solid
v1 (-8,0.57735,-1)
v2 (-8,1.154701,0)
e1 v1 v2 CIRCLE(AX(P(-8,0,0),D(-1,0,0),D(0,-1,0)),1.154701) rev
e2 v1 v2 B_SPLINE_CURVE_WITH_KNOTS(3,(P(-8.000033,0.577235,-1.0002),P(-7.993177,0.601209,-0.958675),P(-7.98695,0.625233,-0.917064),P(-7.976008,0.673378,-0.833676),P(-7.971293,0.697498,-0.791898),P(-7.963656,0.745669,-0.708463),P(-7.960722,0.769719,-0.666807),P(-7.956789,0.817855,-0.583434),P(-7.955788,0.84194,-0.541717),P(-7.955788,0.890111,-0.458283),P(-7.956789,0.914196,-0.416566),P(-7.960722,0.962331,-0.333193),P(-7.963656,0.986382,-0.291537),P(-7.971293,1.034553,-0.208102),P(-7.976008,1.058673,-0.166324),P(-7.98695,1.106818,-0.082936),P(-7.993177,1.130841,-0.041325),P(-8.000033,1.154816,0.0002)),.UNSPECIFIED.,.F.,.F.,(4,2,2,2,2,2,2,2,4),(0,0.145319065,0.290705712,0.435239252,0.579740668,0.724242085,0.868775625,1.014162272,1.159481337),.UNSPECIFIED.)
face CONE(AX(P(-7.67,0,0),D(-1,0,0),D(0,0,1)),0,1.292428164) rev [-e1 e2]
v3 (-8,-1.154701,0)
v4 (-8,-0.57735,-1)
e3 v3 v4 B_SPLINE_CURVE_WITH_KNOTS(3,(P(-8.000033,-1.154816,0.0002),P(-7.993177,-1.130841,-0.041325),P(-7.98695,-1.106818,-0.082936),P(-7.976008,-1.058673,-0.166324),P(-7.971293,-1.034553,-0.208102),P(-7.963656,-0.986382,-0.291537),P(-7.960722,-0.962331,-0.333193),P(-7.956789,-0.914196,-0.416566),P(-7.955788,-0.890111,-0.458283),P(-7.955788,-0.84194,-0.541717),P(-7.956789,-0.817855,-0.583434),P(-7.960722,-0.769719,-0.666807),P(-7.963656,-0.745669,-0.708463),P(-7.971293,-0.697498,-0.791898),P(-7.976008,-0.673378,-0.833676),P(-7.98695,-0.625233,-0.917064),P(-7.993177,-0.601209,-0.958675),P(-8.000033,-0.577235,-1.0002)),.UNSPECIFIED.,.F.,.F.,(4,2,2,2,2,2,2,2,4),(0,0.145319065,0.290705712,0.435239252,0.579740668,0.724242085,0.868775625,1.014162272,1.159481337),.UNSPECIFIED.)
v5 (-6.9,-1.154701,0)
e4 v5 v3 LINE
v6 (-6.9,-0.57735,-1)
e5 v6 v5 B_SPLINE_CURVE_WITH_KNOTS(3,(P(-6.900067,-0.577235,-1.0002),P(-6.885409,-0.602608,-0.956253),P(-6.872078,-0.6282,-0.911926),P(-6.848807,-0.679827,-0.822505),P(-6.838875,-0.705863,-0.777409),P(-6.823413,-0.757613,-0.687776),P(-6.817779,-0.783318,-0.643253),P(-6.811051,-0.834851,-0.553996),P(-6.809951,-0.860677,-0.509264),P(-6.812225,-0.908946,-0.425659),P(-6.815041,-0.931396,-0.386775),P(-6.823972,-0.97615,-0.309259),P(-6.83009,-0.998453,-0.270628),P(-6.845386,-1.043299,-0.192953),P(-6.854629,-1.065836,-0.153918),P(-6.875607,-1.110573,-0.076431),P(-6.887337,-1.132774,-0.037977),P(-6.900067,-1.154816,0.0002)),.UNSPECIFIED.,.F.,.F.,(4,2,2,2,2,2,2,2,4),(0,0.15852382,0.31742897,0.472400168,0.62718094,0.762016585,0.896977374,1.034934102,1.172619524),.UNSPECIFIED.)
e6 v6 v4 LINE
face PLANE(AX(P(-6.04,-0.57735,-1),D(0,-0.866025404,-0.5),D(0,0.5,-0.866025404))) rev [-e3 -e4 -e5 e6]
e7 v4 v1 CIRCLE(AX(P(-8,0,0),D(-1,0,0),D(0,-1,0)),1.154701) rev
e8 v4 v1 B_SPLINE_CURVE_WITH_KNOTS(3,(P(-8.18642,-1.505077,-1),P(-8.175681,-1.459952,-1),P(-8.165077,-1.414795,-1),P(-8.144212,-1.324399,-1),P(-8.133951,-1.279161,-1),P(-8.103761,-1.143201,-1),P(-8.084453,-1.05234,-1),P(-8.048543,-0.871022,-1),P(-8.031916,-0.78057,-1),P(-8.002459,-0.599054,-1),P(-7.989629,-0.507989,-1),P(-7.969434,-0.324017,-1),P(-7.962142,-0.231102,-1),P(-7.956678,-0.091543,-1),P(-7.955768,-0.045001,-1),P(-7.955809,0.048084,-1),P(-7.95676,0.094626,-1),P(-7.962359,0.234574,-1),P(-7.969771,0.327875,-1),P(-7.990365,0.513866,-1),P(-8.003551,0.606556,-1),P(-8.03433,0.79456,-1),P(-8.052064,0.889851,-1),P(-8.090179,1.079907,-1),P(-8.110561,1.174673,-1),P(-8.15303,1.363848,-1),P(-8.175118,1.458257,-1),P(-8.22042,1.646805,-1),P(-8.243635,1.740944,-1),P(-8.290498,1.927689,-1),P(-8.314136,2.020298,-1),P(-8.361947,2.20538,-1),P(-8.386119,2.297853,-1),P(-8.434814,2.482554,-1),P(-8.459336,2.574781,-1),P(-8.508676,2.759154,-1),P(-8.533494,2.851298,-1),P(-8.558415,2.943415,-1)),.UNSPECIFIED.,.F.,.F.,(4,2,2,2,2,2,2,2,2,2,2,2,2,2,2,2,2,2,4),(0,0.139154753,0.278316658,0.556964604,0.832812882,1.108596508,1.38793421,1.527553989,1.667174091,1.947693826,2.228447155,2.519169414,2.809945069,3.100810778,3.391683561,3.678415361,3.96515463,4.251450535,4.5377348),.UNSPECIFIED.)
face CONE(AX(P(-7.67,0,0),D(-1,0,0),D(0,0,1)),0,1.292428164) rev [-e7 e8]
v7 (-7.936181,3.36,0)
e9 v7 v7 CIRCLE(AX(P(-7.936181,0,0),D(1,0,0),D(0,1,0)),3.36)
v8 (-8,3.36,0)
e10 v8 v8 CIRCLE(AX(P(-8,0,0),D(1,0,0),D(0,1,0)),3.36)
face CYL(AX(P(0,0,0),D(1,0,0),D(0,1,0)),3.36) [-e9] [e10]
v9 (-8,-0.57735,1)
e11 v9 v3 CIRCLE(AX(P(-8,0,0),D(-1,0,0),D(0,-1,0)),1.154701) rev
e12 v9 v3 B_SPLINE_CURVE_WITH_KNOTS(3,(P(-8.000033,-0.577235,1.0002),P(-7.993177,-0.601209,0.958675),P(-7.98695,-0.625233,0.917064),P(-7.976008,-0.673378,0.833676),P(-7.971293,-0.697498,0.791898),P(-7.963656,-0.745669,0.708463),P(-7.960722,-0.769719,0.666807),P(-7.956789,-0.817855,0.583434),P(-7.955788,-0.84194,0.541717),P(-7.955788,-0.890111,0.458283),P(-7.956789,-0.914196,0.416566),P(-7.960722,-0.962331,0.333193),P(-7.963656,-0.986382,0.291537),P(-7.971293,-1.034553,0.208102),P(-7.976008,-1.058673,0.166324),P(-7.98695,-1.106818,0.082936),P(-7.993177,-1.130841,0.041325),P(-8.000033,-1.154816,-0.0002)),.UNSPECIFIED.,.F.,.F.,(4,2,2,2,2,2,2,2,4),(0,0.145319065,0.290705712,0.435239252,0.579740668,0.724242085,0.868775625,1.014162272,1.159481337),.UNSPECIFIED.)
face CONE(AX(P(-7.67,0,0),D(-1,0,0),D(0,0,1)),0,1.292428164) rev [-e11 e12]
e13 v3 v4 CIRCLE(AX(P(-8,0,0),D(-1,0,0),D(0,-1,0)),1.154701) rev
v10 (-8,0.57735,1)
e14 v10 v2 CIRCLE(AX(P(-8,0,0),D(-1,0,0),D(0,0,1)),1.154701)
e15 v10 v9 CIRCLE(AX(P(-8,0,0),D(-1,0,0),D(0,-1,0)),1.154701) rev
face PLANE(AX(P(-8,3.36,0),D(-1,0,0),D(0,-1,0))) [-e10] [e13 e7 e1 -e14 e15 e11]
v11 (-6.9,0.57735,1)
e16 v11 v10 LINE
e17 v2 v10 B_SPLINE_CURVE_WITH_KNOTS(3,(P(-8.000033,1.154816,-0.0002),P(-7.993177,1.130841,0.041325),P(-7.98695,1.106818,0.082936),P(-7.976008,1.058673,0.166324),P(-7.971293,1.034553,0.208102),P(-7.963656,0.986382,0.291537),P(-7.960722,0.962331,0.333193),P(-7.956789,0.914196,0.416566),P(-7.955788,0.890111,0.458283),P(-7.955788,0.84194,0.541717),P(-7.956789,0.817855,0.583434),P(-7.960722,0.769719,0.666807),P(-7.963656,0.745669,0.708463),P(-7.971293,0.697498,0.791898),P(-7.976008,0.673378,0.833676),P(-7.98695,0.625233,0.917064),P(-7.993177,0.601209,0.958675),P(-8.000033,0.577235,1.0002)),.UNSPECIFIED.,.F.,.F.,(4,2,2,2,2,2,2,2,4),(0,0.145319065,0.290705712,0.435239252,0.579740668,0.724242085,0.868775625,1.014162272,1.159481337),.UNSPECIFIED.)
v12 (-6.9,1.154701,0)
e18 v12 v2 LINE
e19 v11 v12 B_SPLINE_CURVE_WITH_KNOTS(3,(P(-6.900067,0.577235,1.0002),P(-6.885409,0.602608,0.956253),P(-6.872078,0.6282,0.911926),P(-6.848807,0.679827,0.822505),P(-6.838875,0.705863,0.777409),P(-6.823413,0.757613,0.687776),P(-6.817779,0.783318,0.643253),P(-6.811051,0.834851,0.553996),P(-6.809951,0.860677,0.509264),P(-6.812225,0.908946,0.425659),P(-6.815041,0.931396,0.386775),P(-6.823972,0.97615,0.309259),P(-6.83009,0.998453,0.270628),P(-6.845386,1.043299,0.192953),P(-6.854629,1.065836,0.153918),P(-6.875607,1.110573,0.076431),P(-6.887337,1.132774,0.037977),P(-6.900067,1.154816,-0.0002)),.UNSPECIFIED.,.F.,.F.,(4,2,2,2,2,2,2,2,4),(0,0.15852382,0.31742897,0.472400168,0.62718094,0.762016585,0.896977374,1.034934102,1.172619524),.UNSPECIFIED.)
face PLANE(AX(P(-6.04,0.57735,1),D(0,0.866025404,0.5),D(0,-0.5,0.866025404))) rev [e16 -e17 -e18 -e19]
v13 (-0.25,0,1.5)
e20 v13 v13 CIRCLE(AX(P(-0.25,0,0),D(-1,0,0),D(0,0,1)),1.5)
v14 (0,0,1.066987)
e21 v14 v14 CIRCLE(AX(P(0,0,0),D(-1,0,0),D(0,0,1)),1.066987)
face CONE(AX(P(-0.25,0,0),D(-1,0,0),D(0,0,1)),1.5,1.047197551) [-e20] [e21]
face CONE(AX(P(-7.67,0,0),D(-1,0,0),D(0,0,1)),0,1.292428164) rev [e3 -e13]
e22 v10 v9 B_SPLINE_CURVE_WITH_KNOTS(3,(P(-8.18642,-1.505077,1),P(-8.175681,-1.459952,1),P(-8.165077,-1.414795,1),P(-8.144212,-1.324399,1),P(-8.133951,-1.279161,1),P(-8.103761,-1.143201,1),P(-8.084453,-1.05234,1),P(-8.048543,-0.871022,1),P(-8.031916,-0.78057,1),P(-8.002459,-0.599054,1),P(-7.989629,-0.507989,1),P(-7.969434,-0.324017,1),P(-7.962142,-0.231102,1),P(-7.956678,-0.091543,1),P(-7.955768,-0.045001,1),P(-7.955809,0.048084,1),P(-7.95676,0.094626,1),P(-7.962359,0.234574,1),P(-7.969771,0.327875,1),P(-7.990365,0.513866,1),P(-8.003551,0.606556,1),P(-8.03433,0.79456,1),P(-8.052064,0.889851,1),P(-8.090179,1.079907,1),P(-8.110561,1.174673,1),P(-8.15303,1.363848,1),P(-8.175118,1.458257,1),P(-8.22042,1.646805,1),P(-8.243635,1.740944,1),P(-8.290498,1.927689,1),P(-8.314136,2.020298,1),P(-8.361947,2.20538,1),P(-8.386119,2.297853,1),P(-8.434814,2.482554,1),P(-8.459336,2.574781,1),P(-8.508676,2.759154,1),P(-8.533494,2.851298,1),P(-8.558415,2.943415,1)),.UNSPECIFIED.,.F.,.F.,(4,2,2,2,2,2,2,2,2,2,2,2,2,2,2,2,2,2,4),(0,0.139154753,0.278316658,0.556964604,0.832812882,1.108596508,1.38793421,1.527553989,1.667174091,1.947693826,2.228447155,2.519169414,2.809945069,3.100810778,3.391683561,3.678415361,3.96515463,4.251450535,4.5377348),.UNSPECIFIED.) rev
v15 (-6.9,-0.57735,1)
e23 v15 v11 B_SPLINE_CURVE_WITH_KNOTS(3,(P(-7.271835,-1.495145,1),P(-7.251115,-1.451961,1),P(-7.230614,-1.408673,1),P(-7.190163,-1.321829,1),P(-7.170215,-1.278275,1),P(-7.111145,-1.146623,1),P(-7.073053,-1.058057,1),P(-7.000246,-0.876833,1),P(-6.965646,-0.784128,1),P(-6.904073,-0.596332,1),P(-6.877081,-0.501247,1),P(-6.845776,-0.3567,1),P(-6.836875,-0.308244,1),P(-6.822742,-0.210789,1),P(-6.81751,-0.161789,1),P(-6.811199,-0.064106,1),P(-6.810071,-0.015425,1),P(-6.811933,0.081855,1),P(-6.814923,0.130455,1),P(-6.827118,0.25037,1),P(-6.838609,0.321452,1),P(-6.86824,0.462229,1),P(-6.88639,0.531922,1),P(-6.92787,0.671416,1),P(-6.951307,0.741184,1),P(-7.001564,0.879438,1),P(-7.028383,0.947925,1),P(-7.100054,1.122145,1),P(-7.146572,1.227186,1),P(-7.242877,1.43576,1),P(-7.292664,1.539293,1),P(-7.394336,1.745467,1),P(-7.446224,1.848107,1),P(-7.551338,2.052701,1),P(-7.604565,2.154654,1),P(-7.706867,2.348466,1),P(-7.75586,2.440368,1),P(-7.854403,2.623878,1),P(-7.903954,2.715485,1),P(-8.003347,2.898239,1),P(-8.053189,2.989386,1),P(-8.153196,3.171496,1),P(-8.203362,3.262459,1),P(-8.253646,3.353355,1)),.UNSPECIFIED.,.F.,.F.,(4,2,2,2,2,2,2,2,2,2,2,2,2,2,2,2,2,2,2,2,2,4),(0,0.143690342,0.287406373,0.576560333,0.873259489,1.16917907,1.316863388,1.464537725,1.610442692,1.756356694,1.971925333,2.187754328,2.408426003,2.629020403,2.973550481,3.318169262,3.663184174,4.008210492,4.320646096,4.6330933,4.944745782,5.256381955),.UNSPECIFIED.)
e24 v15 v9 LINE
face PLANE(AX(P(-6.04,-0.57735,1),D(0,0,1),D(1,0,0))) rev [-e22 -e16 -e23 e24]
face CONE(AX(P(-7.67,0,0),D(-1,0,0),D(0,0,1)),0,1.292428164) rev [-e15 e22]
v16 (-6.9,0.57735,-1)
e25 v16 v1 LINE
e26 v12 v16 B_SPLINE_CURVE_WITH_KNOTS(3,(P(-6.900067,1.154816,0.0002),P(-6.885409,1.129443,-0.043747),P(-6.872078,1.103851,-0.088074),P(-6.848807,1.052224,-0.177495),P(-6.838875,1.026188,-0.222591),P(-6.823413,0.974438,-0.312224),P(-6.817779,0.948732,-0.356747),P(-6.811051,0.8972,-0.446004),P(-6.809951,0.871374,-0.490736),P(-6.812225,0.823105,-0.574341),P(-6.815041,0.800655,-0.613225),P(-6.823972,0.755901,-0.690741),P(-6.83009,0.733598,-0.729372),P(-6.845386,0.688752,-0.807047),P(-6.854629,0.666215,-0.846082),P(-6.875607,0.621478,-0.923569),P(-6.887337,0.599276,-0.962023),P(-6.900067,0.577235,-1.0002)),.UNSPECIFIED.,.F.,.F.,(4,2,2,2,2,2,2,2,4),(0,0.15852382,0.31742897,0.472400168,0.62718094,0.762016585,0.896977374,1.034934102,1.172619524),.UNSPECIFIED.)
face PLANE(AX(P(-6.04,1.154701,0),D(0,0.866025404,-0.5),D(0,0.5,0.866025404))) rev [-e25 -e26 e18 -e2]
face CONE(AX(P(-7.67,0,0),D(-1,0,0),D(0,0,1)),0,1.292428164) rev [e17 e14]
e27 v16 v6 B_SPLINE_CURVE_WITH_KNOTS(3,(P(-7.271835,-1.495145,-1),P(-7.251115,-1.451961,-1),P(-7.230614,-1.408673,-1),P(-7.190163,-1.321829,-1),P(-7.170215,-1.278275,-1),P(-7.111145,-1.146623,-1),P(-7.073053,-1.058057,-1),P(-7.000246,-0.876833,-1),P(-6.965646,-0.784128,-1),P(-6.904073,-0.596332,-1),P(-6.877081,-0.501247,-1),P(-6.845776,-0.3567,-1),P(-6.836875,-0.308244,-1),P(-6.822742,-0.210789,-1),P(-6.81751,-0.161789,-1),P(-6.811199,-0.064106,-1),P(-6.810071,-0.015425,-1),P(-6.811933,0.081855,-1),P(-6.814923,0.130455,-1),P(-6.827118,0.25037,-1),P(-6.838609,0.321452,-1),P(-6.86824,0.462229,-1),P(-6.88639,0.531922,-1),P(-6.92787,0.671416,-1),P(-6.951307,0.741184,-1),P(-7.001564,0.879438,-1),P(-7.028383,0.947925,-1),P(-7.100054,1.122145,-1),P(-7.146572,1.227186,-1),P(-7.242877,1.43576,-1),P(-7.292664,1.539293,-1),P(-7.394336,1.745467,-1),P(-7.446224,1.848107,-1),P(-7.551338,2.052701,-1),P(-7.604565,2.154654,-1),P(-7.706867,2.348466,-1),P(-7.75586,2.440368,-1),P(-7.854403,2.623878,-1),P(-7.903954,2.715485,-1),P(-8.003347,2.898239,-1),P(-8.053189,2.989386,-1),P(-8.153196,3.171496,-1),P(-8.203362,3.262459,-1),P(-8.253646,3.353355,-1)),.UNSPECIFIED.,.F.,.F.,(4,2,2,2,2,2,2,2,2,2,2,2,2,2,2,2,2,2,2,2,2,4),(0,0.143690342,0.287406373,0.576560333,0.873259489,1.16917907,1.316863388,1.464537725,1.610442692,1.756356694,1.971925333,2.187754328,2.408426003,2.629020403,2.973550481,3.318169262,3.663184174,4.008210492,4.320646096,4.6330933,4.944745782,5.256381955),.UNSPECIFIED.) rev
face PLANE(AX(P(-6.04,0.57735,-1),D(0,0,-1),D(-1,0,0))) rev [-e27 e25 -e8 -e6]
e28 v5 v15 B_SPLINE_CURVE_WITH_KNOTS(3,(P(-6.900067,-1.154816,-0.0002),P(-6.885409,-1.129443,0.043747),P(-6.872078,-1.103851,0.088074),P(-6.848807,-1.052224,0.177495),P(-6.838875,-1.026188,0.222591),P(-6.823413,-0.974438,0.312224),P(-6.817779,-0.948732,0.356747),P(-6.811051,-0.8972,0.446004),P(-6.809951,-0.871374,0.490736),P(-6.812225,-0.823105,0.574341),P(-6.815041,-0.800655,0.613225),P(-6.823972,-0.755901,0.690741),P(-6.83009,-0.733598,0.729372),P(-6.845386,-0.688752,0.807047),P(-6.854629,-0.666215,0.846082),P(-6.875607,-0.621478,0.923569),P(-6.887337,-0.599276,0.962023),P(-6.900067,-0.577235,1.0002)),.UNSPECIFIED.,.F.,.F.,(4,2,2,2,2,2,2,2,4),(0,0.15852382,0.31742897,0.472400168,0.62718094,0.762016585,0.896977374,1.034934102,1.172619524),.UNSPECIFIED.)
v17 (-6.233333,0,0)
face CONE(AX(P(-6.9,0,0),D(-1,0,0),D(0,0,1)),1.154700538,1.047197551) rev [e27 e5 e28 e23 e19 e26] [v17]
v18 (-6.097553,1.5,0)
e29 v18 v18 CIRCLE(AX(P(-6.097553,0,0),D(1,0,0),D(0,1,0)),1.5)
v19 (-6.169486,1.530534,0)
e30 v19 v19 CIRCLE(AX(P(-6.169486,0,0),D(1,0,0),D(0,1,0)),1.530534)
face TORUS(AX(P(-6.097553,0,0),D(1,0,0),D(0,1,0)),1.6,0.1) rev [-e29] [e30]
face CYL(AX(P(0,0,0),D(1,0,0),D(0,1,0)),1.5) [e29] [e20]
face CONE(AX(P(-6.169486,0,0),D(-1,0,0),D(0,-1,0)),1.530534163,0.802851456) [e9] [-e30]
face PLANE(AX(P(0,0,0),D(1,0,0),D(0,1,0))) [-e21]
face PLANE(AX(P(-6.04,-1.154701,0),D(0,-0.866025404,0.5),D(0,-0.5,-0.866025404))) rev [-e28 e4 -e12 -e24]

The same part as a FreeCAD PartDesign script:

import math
import FreeCAD as App
import Part
import Sketcher
from FreeCAD import Vector
Q = App.Units.Quantity


def add_polygon(sketch, points):
    """Adds a closed chain of lines whose ends are joined by coincident constraints."""
    first, n = sketch.GeometryCount, len(points)
    for a, b in zip(points, points[1:] + points[:1]):
        sketch.addGeometry(Part.LineSegment(App.Vector(*a, 0), App.Vector(*b, 0)), False)
    for i in range(n):
        sketch.addConstraint(Sketcher.Constraint("Coincident", first + i, 2, first + (i + 1) % n, 1))

doc = App.newDocument("Part")
body = doc.addObject("PartDesign::Body", "Body")

# Sketch on XY plane
sketch1 = body.newObject("Sketcher::SketchObject", "Sketch")
sketch1.AttachmentSupport = (doc.getObject("XY_Plane"), [""])
sketch1.MapMode = "FlatFace"
sketch1.addGeometry(Part.LineSegment(Vector(0, 1.5, 0), Vector(-6.097553, 1.5, 0)), False)
sketch1.addGeometry(Part.ArcOfCircle(Part.Circle(Vector(-6.097553, 1.6, 0), Vector(0, 0, 1), 0.1), math.radians(-135.999999), math.radians(-90.000001)), False)
sketch1.addGeometry(Part.LineSegment(Vector(-6.169486, 1.530534, 0), Vector(-7.936181, 3.36, 0)), False)
sketch1.addGeometry(Part.LineSegment(Vector(-7.936181, 3.36, 0), Vector(-8, 3.36, 0)), False)
sketch1.addGeometry(Part.LineSegment(Vector(-8, 3.36, 0), Vector(-8, 0, 0)), False)
sketch1.addGeometry(Part.LineSegment(Vector(-8, 0, 0), Vector(0, 0, 0)), False)
sketch1.addGeometry(Part.LineSegment(Vector(0, 0, 0), Vector(0, 1.5, 0)), False)
sketch1.addConstraint(Sketcher.Constraint("Tangent", 0, 2, 1, 2))
sketch1.addConstraint(Sketcher.Constraint("Tangent", 1, 1, 2, 1))
sketch1.addConstraint(Sketcher.Constraint("Coincident", 2, 2, 3, 1))
sketch1.addConstraint(Sketcher.Constraint("Coincident", 3, 2, 4, 1))
sketch1.addConstraint(Sketcher.Constraint("Coincident", 4, 2, 5, 1))
sketch1.addConstraint(Sketcher.Constraint("Coincident", 5, 2, 6, 1))
sketch1.addConstraint(Sketcher.Constraint("Coincident", 6, 2, 0, 1))
sketch1.addConstraint(Sketcher.Constraint("Horizontal", 0))
sketch1.addConstraint(Sketcher.Constraint("Horizontal", 3))
sketch1.addConstraint(Sketcher.Constraint("Vertical", 4))
sketch1.addConstraint(Sketcher.Constraint("Horizontal", 5))
sketch1.addConstraint(Sketcher.Constraint("Vertical", 6))
sketch1.addConstraint(Sketcher.Constraint("Coincident", 5, 2, -1, 1))
sketch1.addConstraint(Sketcher.Constraint("Radius", 1, 0.1))
sketch1.addConstraint(Sketcher.Constraint("DistanceX", 5, 1, 5, 2, 8.0))
sketch1.addConstraint(Sketcher.Constraint("Angle", 2, Q("134 deg")))
sketch1.addConstraint(Sketcher.Constraint("DistanceY", 6, 1, 6, 2, 1.5))
sketch1.addConstraint(Sketcher.Constraint("DistanceY", 4, 2, 4, 1, 3.36))
sketch1.addConstraint(Sketcher.Constraint("DistanceX", 3, 2, 3, 1, 0.063819))
revolution = body.newObject("PartDesign::Revolution", "Revolution")
revolution.Profile = sketch1
revolution.ReferenceAxis = (sketch1, ["H_Axis"])
revolution.Angle = 360

# Sketch on YZ plane
sketch2 = body.newObject("Sketcher::SketchObject", "Sketch001")
sketch2.AttachmentSupport = (doc.getObject("YZ_Plane"), [""])
sketch2.MapMode = "FlatFace"
sketch2.AttachmentOffset = App.Placement(Vector(0, 0, -8), App.Rotation())
add_polygon(sketch2, [(1.154701, 0), (0.57735, -1), (-0.57735, -1), (-1.154701, 0), (-0.57735, 1), (0.57735, 1)])  # lines 0-5
sketch2.addConstraint(Sketcher.Constraint("Horizontal", 1))
sketch2.addConstraint(Sketcher.Constraint("Horizontal", 4))
sketch2.addConstraint(Sketcher.Constraint("Symmetric", 0, 2, 3, 2, -1, 1))
sketch2.addConstraint(Sketcher.Constraint("Symmetric", 2, 2, 5, 2, -1, 1))
sketch2.addConstraint(Sketcher.Constraint("PointOnObject", 2, 2, -1))
sketch2.addConstraint(Sketcher.Constraint("Parallel", 2, 5))
sketch2.addConstraint(Sketcher.Constraint("Vertical", 1, 2, 3, 2))
sketch2.addConstraint(Sketcher.Constraint("Angle", 0, Q("-120 deg")))
sketch2.addConstraint(Sketcher.Constraint("DistanceY", 0, 2, -1, 1, 1.0))
sketch2.addConstraint(Sketcher.Constraint("DistanceX", 1, 2, 1, 1, 1.154701))
pocket1 = body.newObject("PartDesign::Pocket", "Pocket")
pocket1.Profile = sketch2
pocket1.Length = 1.96
pocket1.Reversed = True

# Sketch on XY plane
sketch3 = body.newObject("Sketcher::SketchObject", "Sketch002")
sketch3.AttachmentSupport = (doc.getObject("XY_Plane"), [""])
sketch3.MapMode = "FlatFace"
add_polygon(sketch3, [(-6.9, 1.154701), (-6.233333, 0), (-5.74, 0), (-5.74, 1.154701)])  # lines 0-3
sketch3.addConstraint(Sketcher.Constraint("Horizontal", 1))
sketch3.addConstraint(Sketcher.Constraint("Vertical", 2))
sketch3.addConstraint(Sketcher.Constraint("Horizontal", 3))
sketch3.addConstraint(Sketcher.Constraint("PointOnObject", 0, 2, -1))
sketch3.addConstraint(Sketcher.Constraint("Angle", 0, Q("-60 deg")))
sketch3.addConstraint(Sketcher.Constraint("DistanceX", 3, 2, 3, 1, 1.16))
sketch3.addConstraint(Sketcher.Constraint("DistanceX", 3, 2, -1, 1, 6.9))
sketch3.addConstraint(Sketcher.Constraint("DistanceY", 2, 1, 2, 2, 1.154701))
revolution2 = body.newObject("PartDesign::Revolution", "Revolution001")
revolution2.Profile = sketch3
revolution2.ReferenceAxis = (sketch3, ["H_Axis"])
revolution2.Angle = 360

# Sketch on XY plane
sketch4 = body.newObject("Sketcher::SketchObject", "Sketch003")
sketch4.AttachmentSupport = (doc.getObject("XY_Plane"), [""])
sketch4.MapMode = "FlatFace"
add_polygon(sketch4, [(-8, 1.154701), (-8, 0), (-7.67, 0)])  # lines 0-2
sketch4.addConstraint(Sketcher.Constraint("Vertical", 0))
sketch4.addConstraint(Sketcher.Constraint("Horizontal", 1))
sketch4.addConstraint(Sketcher.Constraint("PointOnObject", 0, 2, -1))
sketch4.addConstraint(Sketcher.Constraint("DistanceX", 0, 2, -1, 1, 8.0))
sketch4.addConstraint(Sketcher.Constraint("DistanceX", 1, 1, 1, 2, 0.33))
sketch4.addConstraint(Sketcher.Constraint("DistanceY", 0, 2, 0, 1, 1.154701))
groove = body.newObject("PartDesign::Groove", "Groove")
groove.Profile = sketch4
groove.ReferenceAxis = (sketch4, ["H_Axis"])
groove.Angle = 360

# Sketch on XY plane
sketch5 = body.newObject("Sketcher::SketchObject", "Sketch004")
sketch5.AttachmentSupport = (doc.getObject("XY_Plane"), [""])
sketch5.MapMode = "FlatFace"
add_polygon(sketch5, [(-0.25, 1.5), (0, 1.066987), (0.25, 1.5)])  # lines 0-2
sketch5.addConstraint(Sketcher.Constraint("Horizontal", 2))
sketch5.addConstraint(Sketcher.Constraint("PointOnObject", 0, 2, -2))
sketch5.addConstraint(Sketcher.Constraint("Equal", 0, 1))
sketch5.addConstraint(Sketcher.Constraint("Angle", 0, Q("-60 deg")))
sketch5.addConstraint(Sketcher.Constraint("DistanceX", 2, 2, 2, 1, 0.5))
sketch5.addConstraint(Sketcher.Constraint("DistanceY", -1, 1, 1, 2, 1.5))
groove2 = body.newObject("PartDesign::Groove", "Groove001")
groove2.Profile = sketch5
groove2.ReferenceAxis = (sketch5, ["H_Axis"])
groove2.Angle = 360

doc.recompute()
